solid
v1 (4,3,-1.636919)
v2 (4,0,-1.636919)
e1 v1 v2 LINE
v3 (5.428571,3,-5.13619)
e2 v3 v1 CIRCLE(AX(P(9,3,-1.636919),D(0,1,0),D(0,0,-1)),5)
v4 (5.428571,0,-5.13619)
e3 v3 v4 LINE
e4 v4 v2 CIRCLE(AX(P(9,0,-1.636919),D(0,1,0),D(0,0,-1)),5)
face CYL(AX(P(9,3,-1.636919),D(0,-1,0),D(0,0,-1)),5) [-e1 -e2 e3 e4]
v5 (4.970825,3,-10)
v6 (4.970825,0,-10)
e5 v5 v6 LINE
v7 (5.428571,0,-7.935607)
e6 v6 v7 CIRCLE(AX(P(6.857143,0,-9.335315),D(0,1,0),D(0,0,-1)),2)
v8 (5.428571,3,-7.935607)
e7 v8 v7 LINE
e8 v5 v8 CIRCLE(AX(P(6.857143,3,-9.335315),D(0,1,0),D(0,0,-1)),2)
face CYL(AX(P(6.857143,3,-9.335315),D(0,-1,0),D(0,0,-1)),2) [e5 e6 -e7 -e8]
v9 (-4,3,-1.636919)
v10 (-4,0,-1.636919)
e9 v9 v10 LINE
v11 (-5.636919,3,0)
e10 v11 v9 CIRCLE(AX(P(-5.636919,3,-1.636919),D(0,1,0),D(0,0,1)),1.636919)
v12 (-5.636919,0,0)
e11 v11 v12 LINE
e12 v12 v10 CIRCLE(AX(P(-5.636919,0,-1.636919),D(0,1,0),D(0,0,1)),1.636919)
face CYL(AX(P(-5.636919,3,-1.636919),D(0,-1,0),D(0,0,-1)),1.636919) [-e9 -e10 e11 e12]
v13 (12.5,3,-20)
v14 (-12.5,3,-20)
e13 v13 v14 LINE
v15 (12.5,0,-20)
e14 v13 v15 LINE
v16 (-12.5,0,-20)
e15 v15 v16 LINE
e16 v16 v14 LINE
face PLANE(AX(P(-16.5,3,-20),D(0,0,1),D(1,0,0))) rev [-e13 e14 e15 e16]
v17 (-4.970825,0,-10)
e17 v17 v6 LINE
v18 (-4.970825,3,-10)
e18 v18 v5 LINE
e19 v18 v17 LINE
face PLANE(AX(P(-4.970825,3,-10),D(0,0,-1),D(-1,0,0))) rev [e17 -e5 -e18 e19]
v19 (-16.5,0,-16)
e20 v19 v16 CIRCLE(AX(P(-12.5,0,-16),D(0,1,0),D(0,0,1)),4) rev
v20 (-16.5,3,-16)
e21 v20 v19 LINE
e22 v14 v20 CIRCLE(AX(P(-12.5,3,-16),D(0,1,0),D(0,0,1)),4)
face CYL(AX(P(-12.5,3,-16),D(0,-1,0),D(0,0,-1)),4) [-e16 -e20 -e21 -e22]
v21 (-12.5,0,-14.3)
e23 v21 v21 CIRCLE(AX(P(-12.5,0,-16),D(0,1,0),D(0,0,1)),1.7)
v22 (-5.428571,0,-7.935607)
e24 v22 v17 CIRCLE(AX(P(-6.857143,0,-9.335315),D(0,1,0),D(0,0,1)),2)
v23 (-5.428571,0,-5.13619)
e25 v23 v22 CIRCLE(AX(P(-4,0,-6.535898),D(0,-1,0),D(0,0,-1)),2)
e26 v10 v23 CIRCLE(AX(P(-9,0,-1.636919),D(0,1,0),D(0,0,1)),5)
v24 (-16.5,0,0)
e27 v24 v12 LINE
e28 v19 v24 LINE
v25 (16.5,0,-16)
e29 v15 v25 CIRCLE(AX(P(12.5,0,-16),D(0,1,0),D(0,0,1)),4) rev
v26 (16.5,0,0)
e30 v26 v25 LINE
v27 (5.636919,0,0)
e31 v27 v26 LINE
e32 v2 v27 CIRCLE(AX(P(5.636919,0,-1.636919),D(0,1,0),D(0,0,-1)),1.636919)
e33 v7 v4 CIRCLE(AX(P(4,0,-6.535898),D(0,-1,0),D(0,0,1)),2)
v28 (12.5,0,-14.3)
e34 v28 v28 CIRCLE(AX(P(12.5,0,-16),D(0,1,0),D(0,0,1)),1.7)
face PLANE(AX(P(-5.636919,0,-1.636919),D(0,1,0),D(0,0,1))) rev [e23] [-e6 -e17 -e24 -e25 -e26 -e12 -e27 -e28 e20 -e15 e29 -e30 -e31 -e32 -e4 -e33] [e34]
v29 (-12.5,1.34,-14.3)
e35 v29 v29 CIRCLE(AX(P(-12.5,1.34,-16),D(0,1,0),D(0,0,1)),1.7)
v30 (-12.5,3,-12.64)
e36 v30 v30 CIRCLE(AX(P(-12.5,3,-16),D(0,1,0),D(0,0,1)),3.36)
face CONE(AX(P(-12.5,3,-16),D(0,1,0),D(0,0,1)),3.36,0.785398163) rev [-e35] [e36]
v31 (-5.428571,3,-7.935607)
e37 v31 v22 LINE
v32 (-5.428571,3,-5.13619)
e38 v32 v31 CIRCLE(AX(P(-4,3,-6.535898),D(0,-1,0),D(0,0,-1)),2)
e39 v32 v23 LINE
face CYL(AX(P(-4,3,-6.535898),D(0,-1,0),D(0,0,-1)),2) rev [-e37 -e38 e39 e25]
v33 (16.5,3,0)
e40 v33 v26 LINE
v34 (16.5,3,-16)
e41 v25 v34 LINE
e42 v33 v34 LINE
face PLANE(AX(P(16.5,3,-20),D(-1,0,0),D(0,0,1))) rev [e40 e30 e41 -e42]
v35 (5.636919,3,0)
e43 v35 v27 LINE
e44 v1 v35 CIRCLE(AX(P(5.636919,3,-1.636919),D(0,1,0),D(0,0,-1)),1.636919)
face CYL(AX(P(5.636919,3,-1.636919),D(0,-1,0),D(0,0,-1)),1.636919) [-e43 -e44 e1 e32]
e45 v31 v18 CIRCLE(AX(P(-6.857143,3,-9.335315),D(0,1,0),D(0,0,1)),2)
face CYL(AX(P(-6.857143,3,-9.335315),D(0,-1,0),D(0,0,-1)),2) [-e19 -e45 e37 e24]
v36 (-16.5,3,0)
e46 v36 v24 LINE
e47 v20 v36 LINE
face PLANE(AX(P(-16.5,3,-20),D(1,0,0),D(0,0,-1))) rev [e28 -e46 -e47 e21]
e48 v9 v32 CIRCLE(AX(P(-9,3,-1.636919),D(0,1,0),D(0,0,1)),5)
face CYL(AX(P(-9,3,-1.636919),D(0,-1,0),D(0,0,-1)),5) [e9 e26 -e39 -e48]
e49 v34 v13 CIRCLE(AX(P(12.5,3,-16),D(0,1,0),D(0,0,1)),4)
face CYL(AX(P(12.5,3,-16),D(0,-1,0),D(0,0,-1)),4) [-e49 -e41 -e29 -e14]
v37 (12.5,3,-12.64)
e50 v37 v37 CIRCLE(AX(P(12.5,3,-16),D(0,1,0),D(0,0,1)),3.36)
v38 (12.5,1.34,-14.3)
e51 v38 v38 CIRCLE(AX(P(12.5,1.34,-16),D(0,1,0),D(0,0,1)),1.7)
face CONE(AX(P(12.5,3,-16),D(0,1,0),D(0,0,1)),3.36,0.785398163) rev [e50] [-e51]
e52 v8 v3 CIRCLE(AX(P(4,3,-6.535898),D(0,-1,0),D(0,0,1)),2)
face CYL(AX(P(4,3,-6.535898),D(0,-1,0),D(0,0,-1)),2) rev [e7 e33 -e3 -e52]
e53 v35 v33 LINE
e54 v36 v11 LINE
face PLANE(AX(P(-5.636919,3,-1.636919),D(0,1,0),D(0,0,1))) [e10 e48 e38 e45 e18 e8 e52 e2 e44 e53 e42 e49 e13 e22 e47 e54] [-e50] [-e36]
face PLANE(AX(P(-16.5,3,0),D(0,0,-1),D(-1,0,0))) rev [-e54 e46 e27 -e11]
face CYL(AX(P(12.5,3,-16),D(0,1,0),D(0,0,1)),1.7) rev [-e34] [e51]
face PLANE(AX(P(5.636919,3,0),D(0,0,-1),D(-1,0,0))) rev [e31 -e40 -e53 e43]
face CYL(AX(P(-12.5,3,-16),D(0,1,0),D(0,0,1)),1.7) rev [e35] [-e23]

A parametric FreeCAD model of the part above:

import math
import FreeCAD as App
import Part
import Sketcher


def edges_at(feature, points):
    """Names of the edges that pass closest to the given points."""
    edges = feature.Shape.Edges
    near = lambda p: min(range(len(edges)), key=lambda i: edges[i].distToShape(Part.Vertex(*p))[0])
    return sorted({f"Edge{near(p) + 1}" for p in points})

doc = App.newDocument("Part")
body = doc.addObject("PartDesign::Body", "Body")

sketch1 = body.newObject("Sketcher::SketchObject", "Sketch")
sketch1.AttachmentSupport = (doc.getObject("XZ_Plane"), [""])
sketch1.MapMode = "FlatFace"
sketch1.addGeometry([
    Part.LineSegment(App.Vector(16.5, -20, 0), App.Vector(-16.5, -20, 0)),
    Part.LineSegment(App.Vector(-16.5, -20, 0), App.Vector(-16.5, 0, 0)),
    Part.LineSegment(App.Vector(-16.5, 0, 0), App.Vector(-5.6, 0, 0)),
    Part.ArcOfCircle(Part.Circle(App.Vector(-5.6, -1.6, 0), App.Vector(0, 0, 1), 1.6), math.radians(0), math.radians(90)),
    Part.ArcOfCircle(Part.Circle(App.Vector(-9, -1.6, 0), App.Vector(0, 0, 1), 5), math.radians(-44), math.radians(0)),
    Part.ArcOfCircle(Part.Circle(App.Vector(-4, -6.5, 0), App.Vector(0, 0, 1), 2), math.radians(136), math.radians(224)),
    Part.ArcOfCircle(Part.Circle(App.Vector(-6.9, -9.3, 0), App.Vector(0, 0, 1), 2), math.radians(-19), math.radians(44)),
    Part.LineSegment(App.Vector(-5, -10, 0), App.Vector(5, -10, 0)),
    Part.ArcOfCircle(Part.Circle(App.Vector(6.9, -9.3, 0), App.Vector(0, 0, 1), 2), math.radians(136), math.radians(199)),
    Part.ArcOfCircle(Part.Circle(App.Vector(4, -6.5, 0), App.Vector(0, 0, 1), 2), math.radians(-44), math.radians(44)),
    Part.ArcOfCircle(Part.Circle(App.Vector(9, -1.6, 0), App.Vector(0, 0, 1), 5), math.radians(180), math.radians(224)),
    Part.ArcOfCircle(Part.Circle(App.Vector(5.6, -1.6, 0), App.Vector(0, 0, 1), 1.6), math.radians(90), math.radians(180)),
    Part.LineSegment(App.Vector(5.6, 0, 0), App.Vector(16.5, 0, 0)),
    Part.LineSegment(App.Vector(16.5, 0, 0), App.Vector(16.5, -20, 0)),
], False)
sketch1.addConstraint([
    Sketcher.Constraint("Coincident", 0, 2, 1, 1),
    Sketcher.Constraint("Coincident", 1, 2, 2, 1),
    Sketcher.Constraint("Tangent", 2, 2, 3, 2),
    Sketcher.Constraint("Tangent", 3, 1, 4, 2),
    Sketcher.Constraint("Tangent", 4, 1, 5, 1),
    Sketcher.Constraint("Tangent", 5, 2, 6, 2),
    Sketcher.Constraint("Coincident", 6, 1, 7, 1),
    Sketcher.Constraint("Coincident", 7, 2, 8, 2),
    Sketcher.Constraint("Tangent", 8, 1, 9, 1),
    Sketcher.Constraint("Tangent", 9, 2, 10, 2),
    Sketcher.Constraint("Tangent", 10, 1, 11, 2),
    Sketcher.Constraint("Tangent", 11, 1, 12, 1),
    Sketcher.Constraint("Coincident", 12, 2, 13, 1),
    Sketcher.Constraint("Coincident", 13, 2, 0, 1),
    Sketcher.Constraint("Horizontal", 0),
    Sketcher.Constraint("Vertical", 1),
    Sketcher.Constraint("Horizontal", 2),
    Sketcher.Constraint("Horizontal", 7),
    Sketcher.Constraint("Horizontal", 12),
    Sketcher.Constraint("Vertical", 13),
    Sketcher.Constraint("Equal", 5, 6),
    Sketcher.Constraint("Equal", 6, 8),
    Sketcher.Constraint("Equal", 8, 9),
    Sketcher.Constraint("Equal", 4, 10),
    Sketcher.Constraint("Equal", 3, 11),
    Sketcher.Constraint("Symmetric", 2, 2, 11, 1, -1, 1),
    Sketcher.Constraint("Symmetric", 6, 3, 8, 3, -2),
    Sketcher.Constraint("Symmetric", 1, 2, 12, 2, -2),
    Sketcher.Constraint("Horizontal", 3, 3, 4, 3),
    Sketcher.Constraint("Horizontal", 5, 3, 9, 3),
    Sketcher.Constraint("Vertical", 5, 3, 3, 1),
    Sketcher.Constraint("Vertical", 4, 1, 5, 2),
    Sketcher.Constraint("Radius", 4, 5.0),
    Sketcher.Constraint("Radius", 5, 2.0),
    Sketcher.Constraint("DistanceX", 0, 2, 0, 1, 33.0),
    Sketcher.Constraint("DistanceY", 1, 1, 1, 2, 20.0),
    Sketcher.Constraint("DistanceX", 4, 3, -1, 1, 9.0),
    Sketcher.Constraint("DistanceY", 6, 1, -1, 1, 10.0),
    Sketcher.Constraint("Radius", 3, 1.636919),
])
pad1 = body.newObject("PartDesign::Pad", "Pad")
pad1.Profile = sketch1
pad1.Length = 3
pad1.Reversed = True

sketch2 = body.newObject("Sketcher::SketchObject", "Sketch001")
sketch2.AttachmentSupport = (doc.getObject("XZ_Plane"), [""])
sketch2.MapMode = "FlatFace"
sketch2.AttachmentOffset = App.Placement(App.Vector(0, 0, -3), App.Rotation())
sketch2.addGeometry([
    Part.Circle(App.Vector(12.5, -16, 0), App.Vector(0, 0, 1), 1.7),
    Part.Circle(App.Vector(-12.5, -16, 0), App.Vector(0, 0, 1), 1.7),
], False)
sketch2.addConstraint([
    Sketcher.Constraint("Equal", 0, 1),
    Sketcher.Constraint("Symmetric", 0, 3, 1, 3, -2),
    Sketcher.Constraint("Diameter", 0, 3.4),
    Sketcher.Constraint("DistanceY", 0, 3, -1, 1, 16.0),
    Sketcher.Constraint("DistanceX", 1, 3, 0, 3, 25.0),
])
doc.recompute()
hole = body.newObject("PartDesign::Hole", "Hole")
hole.Profile = sketch2
hole.ThreadType = "None"
hole.Diameter = 3.4
hole.DepthType = "Dimension"
hole.Depth = 10
hole.DrillPoint = "Angled"
hole.DrillPointAngle = 118
hole.HoleCutType = "Countersink"
hole.HoleCutDiameter = 6.72
hole.HoleCutCountersinkAngle = 90
hole.Reversed = True
doc.recompute()

fillet = body.newObject("PartDesign::Fillet", "Fillet")
fillet.Base = (hole, edges_at(hole, [(-16.5, 1.5, -20), (16.5, 1.5, -20)]))
fillet.Radius = 4

doc.recompute()
